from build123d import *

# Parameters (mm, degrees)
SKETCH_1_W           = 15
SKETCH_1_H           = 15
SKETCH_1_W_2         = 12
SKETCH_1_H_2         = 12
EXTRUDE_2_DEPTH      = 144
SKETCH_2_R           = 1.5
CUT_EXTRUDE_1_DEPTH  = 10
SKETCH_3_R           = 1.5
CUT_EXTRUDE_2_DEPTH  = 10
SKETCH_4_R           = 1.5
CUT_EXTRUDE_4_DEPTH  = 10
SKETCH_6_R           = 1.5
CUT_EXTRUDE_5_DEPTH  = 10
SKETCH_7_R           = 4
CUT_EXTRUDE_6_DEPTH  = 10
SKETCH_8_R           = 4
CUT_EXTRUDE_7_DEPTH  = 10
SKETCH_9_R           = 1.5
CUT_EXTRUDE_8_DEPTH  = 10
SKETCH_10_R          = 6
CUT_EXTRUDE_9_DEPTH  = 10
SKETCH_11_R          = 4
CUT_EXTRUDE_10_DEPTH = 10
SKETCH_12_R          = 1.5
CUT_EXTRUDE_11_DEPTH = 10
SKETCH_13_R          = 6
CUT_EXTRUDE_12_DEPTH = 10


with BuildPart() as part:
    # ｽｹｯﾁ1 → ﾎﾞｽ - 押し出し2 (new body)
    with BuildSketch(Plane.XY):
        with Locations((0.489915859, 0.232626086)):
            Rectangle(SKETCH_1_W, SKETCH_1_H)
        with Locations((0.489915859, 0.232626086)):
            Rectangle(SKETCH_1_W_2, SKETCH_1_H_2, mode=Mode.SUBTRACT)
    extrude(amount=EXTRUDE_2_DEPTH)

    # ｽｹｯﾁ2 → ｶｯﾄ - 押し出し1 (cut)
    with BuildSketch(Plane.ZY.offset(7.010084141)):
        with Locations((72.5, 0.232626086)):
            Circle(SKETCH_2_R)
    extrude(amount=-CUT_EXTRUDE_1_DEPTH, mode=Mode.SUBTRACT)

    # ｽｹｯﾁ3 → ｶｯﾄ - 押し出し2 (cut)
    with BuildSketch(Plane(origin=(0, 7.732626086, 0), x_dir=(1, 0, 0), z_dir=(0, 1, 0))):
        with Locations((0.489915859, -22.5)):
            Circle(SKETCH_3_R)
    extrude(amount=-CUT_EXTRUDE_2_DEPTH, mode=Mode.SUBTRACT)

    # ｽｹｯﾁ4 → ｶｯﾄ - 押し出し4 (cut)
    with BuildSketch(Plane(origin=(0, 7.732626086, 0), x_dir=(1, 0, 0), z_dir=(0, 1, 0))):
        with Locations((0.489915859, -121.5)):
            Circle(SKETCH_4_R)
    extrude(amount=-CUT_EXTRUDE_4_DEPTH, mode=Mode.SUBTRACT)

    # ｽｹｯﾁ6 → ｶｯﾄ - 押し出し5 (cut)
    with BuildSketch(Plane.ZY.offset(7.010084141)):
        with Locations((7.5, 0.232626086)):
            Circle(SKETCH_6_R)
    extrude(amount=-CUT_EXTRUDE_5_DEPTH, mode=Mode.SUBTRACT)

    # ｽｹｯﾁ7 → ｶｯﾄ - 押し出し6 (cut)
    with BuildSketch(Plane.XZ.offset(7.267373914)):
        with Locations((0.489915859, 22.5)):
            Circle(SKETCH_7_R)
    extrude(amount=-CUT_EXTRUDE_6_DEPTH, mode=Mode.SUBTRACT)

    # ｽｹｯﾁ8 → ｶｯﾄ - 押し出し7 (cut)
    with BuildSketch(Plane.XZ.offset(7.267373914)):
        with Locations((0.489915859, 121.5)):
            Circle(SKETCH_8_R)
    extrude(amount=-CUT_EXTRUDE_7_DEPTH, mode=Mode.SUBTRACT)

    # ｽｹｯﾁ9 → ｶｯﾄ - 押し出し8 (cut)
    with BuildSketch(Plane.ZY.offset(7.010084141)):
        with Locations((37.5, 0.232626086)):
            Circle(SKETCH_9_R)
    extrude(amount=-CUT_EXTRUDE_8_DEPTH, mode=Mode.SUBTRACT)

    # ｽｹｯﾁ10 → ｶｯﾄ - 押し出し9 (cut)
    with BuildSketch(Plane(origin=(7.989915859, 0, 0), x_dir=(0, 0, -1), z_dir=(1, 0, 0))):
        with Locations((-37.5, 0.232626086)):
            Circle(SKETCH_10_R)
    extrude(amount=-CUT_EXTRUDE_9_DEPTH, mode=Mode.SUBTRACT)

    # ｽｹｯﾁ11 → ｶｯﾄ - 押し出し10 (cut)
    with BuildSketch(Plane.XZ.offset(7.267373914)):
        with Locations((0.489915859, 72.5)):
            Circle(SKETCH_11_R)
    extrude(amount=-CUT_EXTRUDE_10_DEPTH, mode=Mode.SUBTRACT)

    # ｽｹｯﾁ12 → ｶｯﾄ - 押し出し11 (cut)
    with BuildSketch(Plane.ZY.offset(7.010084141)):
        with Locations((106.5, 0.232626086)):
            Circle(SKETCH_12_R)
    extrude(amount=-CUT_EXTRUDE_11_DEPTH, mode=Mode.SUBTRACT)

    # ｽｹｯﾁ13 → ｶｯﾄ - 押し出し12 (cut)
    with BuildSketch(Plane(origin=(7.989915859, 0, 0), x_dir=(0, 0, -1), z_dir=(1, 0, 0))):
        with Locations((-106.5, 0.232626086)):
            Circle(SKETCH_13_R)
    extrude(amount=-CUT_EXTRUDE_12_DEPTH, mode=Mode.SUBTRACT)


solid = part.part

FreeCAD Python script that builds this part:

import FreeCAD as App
import Part
import Sketcher
from FreeCAD import Vector

doc = App.newDocument("Part")
params = doc.addObject("Spreadsheet::Sheet", "Params")
for row, (alias, value) in enumerate([
    ("sketch1_width", "15 mm"),
    ("sketch1_width2", "12 mm"),
    ("pad1_length", "144 mm"),
    ("sketch2_diameter", "3 mm"),
    ("pocket1_length", "10 mm"),
    ("sketch3_diameter", "3 mm"),
    ("pocket2_length", "10 mm"),
    ("sketch4_diameter", "3 mm"),
    ("pocket3_length", "10 mm"),
    ("sketch5_diameter", "3 mm"),
    ("pocket4_length", "10 mm"),
    ("sketch6_diameter", "8 mm"),
    ("pocket5_length", "10 mm"),
    ("sketch7_diameter", "8 mm"),
    ("pocket6_length", "10 mm"),
    ("sketch8_diameter", "3 mm"),
    ("pocket7_length", "10 mm"),
    ("sketch9_diameter", "12 mm"),
    ("pocket8_length", "10 mm"),
    ("sketch10_diameter", "8 mm"),
    ("pocket9_length", "10 mm"),
    ("sketch11_diameter", "3 mm"),
    ("pocket10_length", "10 mm"),
    ("sketch12_diameter", "12 mm"),
    ("pocket11_length", "10 mm"),
], start=1):
    params.set(f"A{row}", alias)
    params.set(f"B{row}", "=" + value)
    params.setAlias(f"B{row}", alias)

body = doc.addObject("PartDesign::Body", "Body")

# Sketch on XY plane
sketch1 = body.newObject("Sketcher::SketchObject", "Sketch")
sketch1.AttachmentSupport = (doc.getObject("XY_Plane"), [""])
sketch1.MapMode = "FlatFace"
sketch1.addGeometry(Part.LineSegment(Vector(-7, 8, 0), Vector(-7, -7, 0)), False)
sketch1.addGeometry(Part.LineSegment(Vector(-7, -7, 0), Vector(8, -7, 0)), False)
sketch1.addGeometry(Part.LineSegment(Vector(8, -7, 0), Vector(8, 8, 0)), False)
sketch1.addGeometry(Part.LineSegment(Vector(8, 8, 0), Vector(-7, 8, 0)), False)
sketch1.addGeometry(Part.LineSegment(Vector(6, -6, 0), Vector(-6, -6, 0)), False)
sketch1.addGeometry(Part.LineSegment(Vector(-6, -6, 0), Vector(-6, 6, 0)), False)
sketch1.addGeometry(Part.LineSegment(Vector(-6, 6, 0), Vector(6, 6, 0)), False)
sketch1.addGeometry(Part.LineSegment(Vector(6, 6, 0), Vector(6, -6, 0)), False)
sketch1.addConstraint(Sketcher.Constraint("Coincident", 0, 2, 1, 1))
sketch1.addConstraint(Sketcher.Constraint("Coincident", 1, 2, 2, 1))
sketch1.addConstraint(Sketcher.Constraint("Coincident", 2, 2, 3, 1))
sketch1.addConstraint(Sketcher.Constraint("Coincident", 3, 2, 0, 1))
sketch1.addConstraint(Sketcher.Constraint("Coincident", 4, 2, 5, 1))
sketch1.addConstraint(Sketcher.Constraint("Coincident", 5, 2, 6, 1))
sketch1.addConstraint(Sketcher.Constraint("Coincident", 6, 2, 7, 1))
sketch1.addConstraint(Sketcher.Constraint("Coincident", 7, 2, 4, 1))
sketch1.addConstraint(Sketcher.Constraint("Vertical", 0))
sketch1.addConstraint(Sketcher.Constraint("Horizontal", 1))
sketch1.addConstraint(Sketcher.Constraint("Vertical", 2))
sketch1.addConstraint(Sketcher.Constraint("Horizontal", 3))
sketch1.addConstraint(Sketcher.Constraint("Horizontal", 4))
sketch1.addConstraint(Sketcher.Constraint("Vertical", 5))
sketch1.addConstraint(Sketcher.Constraint("Horizontal", 6))
sketch1.addConstraint(Sketcher.Constraint("Vertical", 7))
sketch1.addConstraint(Sketcher.Constraint("Equal", 3, 0))
sketch1.addConstraint(Sketcher.Constraint("Equal", 6, 5))
sketch1.addConstraint(Sketcher.Constraint("DistanceX", 1, 1, 1, 2, 15.0))
sketch1.addConstraint(Sketcher.Constraint("DistanceX", 4, 2, 4, 1, 12.0))
sketch1.addConstraint(Sketcher.Constraint("DistanceX", 0, 2, 4, 2, 1.5))
sketch1.addConstraint(Sketcher.Constraint("DistanceY", 0, 2, 4, 2, 1.5))
sketch1.addConstraint(Sketcher.Constraint("DistanceX", 0, 2, -1, 1, 7.010084))
sketch1.addConstraint(Sketcher.Constraint("DistanceY", 0, 2, -1, 1, 7.267374))
sketch1.setExpression("Constraints[18]", "Params.sketch1_width")
sketch1.setExpression("Constraints[19]", "Params.sketch1_width2")
pad1 = body.newObject("PartDesign::Pad", "Pad")
pad1.Profile = sketch1
pad1.setExpression("Length", "Params.pad1_length")

# Sketch on YZ plane
sketch2 = body.newObject("Sketcher::SketchObject", "Sketch001")
sketch2.AttachmentSupport = (doc.getObject("YZ_Plane"), [""])
sketch2.MapMode = "FlatFace"
sketch2.AttachmentOffset = App.Placement(Vector(0, 0, -7.010084), App.Rotation())
sketch2.addGeometry(Part.Circle(Vector(0.2, 72.5, 0), Vector(0, 0, 1), 1.5), False)
sketch2.addConstraint(Sketcher.Constraint("Diameter", 0, 3.0))
sketch2.addConstraint(Sketcher.Constraint("DistanceY", -1, 1, 0, 3, 72.5))
sketch2.addConstraint(Sketcher.Constraint("DistanceX", -1, 1, 0, 3, 0.232626))
sketch2.setExpression("Constraints[0]", "Params.sketch2_diameter")
pocket1 = body.newObject("PartDesign::Pocket", "Pocket")
pocket1.Profile = sketch2
pocket1.setExpression("Length", "Params.pocket1_length")
pocket1.Reversed = True

# Sketch on XZ plane
sketch3 = body.newObject("Sketcher::SketchObject", "Sketch002")
sketch3.AttachmentSupport = (doc.getObject("XZ_Plane"), [""])
sketch3.MapMode = "FlatFace"
sketch3.AttachmentOffset = App.Placement(Vector(0, 0, -7.732626), App.Rotation())
sketch3.addGeometry(Part.Circle(Vector(0.5, 22.5, 0), Vector(0, 0, 1), 1.5), False)
sketch3.addConstraint(Sketcher.Constraint("Diameter", 0, 3.0))
sketch3.addConstraint(Sketcher.Constraint("DistanceY", -1, 1, 0, 3, 22.5))
sketch3.addConstraint(Sketcher.Constraint("DistanceX", -1, 1, 0, 3, 0.489916))
sketch3.setExpression("Constraints[0]", "Params.sketch3_diameter")
pocket2 = body.newObject("PartDesign::Pocket", "Pocket001")
pocket2.Profile = sketch3
pocket2.setExpression("Length", "Params.pocket2_length")
pocket2.Reversed = True

# Sketch on XZ plane
sketch4 = body.newObject("Sketcher::SketchObject", "Sketch003")
sketch4.AttachmentSupport = (doc.getObject("XZ_Plane"), [""])
sketch4.MapMode = "FlatFace"
sketch4.AttachmentOffset = App.Placement(Vector(0, 0, -7.732626), App.Rotation())
sketch4.addGeometry(Part.Circle(Vector(0.5, 121.5, 0), Vector(0, 0, 1), 1.5), False)
sketch4.addConstraint(Sketcher.Constraint("Diameter", 0, 3.0))
sketch4.addConstraint(Sketcher.Constraint("DistanceY", -1, 1, 0, 3, 121.5))
sketch4.addConstraint(Sketcher.Constraint("DistanceX", -1, 1, 0, 3, 0.489916))
sketch4.setExpression("Constraints[0]", "Params.sketch4_diameter")
pocket3 = body.newObject("PartDesign::Pocket", "Pocket002")
pocket3.Profile = sketch4
pocket3.setExpression("Length", "Params.pocket3_length")
pocket3.Reversed = True

# Sketch on YZ plane
sketch5 = body.newObject("Sketcher::SketchObject", "Sketch004")
sketch5.AttachmentSupport = (doc.getObject("YZ_Plane"), [""])
sketch5.MapMode = "FlatFace"
sketch5.AttachmentOffset = App.Placement(Vector(0, 0, -7.010084), App.Rotation())
sketch5.addGeometry(Part.Circle(Vector(0.2, 7.5, 0), Vector(0, 0, 1), 1.5), False)
sketch5.addConstraint(Sketcher.Constraint("Diameter", 0, 3.0))
sketch5.addConstraint(Sketcher.Constraint("DistanceY", -1, 1, 0, 3, 7.5))
sketch5.addConstraint(Sketcher.Constraint("DistanceX", -1, 1, 0, 3, 0.232626))
sketch5.setExpression("Constraints[0]", "Params.sketch5_diameter")
pocket4 = body.newObject("PartDesign::Pocket", "Pocket003")
pocket4.Profile = sketch5
pocket4.setExpression("Length", "Params.pocket4_length")
pocket4.Reversed = True

# Sketch on XZ plane
sketch6 = body.newObject("Sketcher::SketchObject", "Sketch005")
sketch6.AttachmentSupport = (doc.getObject("XZ_Plane"), [""])
sketch6.MapMode = "FlatFace"
sketch6.AttachmentOffset = App.Placement(Vector(0, 0, 7.267374), App.Rotation())
sketch6.addGeometry(Part.Circle(Vector(0.5, 22.5, 0), Vector(0, 0, 1), 4), False)
sketch6.addConstraint(Sketcher.Constraint("Diameter", 0, 8.0))
sketch6.addConstraint(Sketcher.Constraint("DistanceY", -1, 1, 0, 3, 22.5))
sketch6.addConstraint(Sketcher.Constraint("DistanceX", -1, 1, 0, 3, 0.489916))
sketch6.setExpression("Constraints[0]", "Params.sketch6_diameter")
pocket5 = body.newObject("PartDesign::Pocket", "Pocket004")
pocket5.Profile = sketch6
pocket5.setExpression("Length", "Params.pocket5_length")

# Sketch on XZ plane
sketch7 = body.newObject("Sketcher::SketchObject", "Sketch006")
sketch7.AttachmentSupport = (doc.getObject("XZ_Plane"), [""])
sketch7.MapMode = "FlatFace"
sketch7.AttachmentOffset = App.Placement(Vector(0, 0, 7.267374), App.Rotation())
sketch7.addGeometry(Part.Circle(Vector(0.5, 121.5, 0), Vector(0, 0, 1), 4), False)
sketch7.addConstraint(Sketcher.Constraint("Diameter", 0, 8.0))
sketch7.addConstraint(Sketcher.Constraint("DistanceY", -1, 1, 0, 3, 121.5))
sketch7.addConstraint(Sketcher.Constraint("DistanceX", -1, 1, 0, 3, 0.489916))
sketch7.setExpression("Constraints[0]", "Params.sketch7_diameter")
pocket6 = body.newObject("PartDesign::Pocket", "Pocket005")
pocket6.Profile = sketch7
pocket6.setExpression("Length", "Params.pocket6_length")

# Sketch on YZ plane
sketch8 = body.newObject("Sketcher::SketchObject", "Sketch007")
sketch8.AttachmentSupport = (doc.getObject("YZ_Plane"), [""])
sketch8.MapMode = "FlatFace"
sketch8.AttachmentOffset = App.Placement(Vector(0, 0, -7.010084), App.Rotation())
sketch8.addGeometry(Part.Circle(Vector(0.2, 37.5, 0), Vector(0, 0, 1), 1.5), False)
sketch8.addConstraint(Sketcher.Constraint("Diameter", 0, 3.0))
sketch8.addConstraint(Sketcher.Constraint("DistanceY", -1, 1, 0, 3, 37.5))
sketch8.addConstraint(Sketcher.Constraint("DistanceX", -1, 1, 0, 3, 0.232626))
sketch8.setExpression("Constraints[0]", "Params.sketch8_diameter")
pocket7 = body.newObject("PartDesign::Pocket", "Pocket006")
pocket7.Profile = sketch8
pocket7.setExpression("Length", "Params.pocket7_length")
pocket7.Reversed = True

# Sketch on YZ plane
sketch9 = body.newObject("Sketcher::SketchObject", "Sketch008")
sketch9.AttachmentSupport = (doc.getObject("YZ_Plane"), [""])
sketch9.MapMode = "FlatFace"
sketch9.AttachmentOffset = App.Placement(Vector(0, 0, 7.989916), App.Rotation())
sketch9.addGeometry(Part.Circle(Vector(0, 38, 0), Vector(0, 0, 1), 6), False)
sketch9.addConstraint(Sketcher.Constraint("Diameter", 0, 12.0))
sketch9.addConstraint(Sketcher.Constraint("DistanceY", -1, 1, 0, 3, 37.5))
sketch9.addConstraint(Sketcher.Constraint("DistanceX", -1, 1, 0, 3, 0.232626))
sketch9.setExpression("Constraints[0]", "Params.sketch9_diameter")
pocket8 = body.newObject("PartDesign::Pocket", "Pocket007")
pocket8.Profile = sketch9
pocket8.setExpression("Length", "Params.pocket8_length")

# Sketch on XZ plane
sketch10 = body.newObject("Sketcher::SketchObject", "Sketch009")
sketch10.AttachmentSupport = (doc.getObject("XZ_Plane"), [""])
sketch10.MapMode = "FlatFace"
sketch10.AttachmentOffset = App.Placement(Vector(0, 0, 7.267374), App.Rotation())
sketch10.addGeometry(Part.Circle(Vector(0.5, 72.5, 0), Vector(0, 0, 1), 4), False)
sketch10.addConstraint(Sketcher.Constraint("Diameter", 0, 8.0))
sketch10.addConstraint(Sketcher.Constraint("DistanceY", -1, 1, 0, 3, 72.5))
sketch10.addConstraint(Sketcher.Constraint("DistanceX", -1, 1, 0, 3, 0.489916))
sketch10.setExpression("Constraints[0]", "Params.sketch10_diameter")
pocket9 = body.newObject("PartDesign::Pocket", "Pocket008")
pocket9.Profile = sketch10
pocket9.setExpression("Length", "Params.pocket9_length")

# Sketch on YZ plane
sketch11 = body.newObject("Sketcher::SketchObject", "Sketch010")
sketch11.AttachmentSupport = (doc.getObject("YZ_Plane"), [""])
sketch11.MapMode = "FlatFace"
sketch11.AttachmentOffset = App.Placement(Vector(0, 0, -7.010084), App.Rotation())
sketch11.addGeometry(Part.Circle(Vector(0.2, 106.5, 0), Vector(0, 0, 1), 1.5), False)
sketch11.addConstraint(Sketcher.Constraint("Diameter", 0, 3.0))
sketch11.addConstraint(Sketcher.Constraint("DistanceY", -1, 1, 0, 3, 106.5))
sketch11.addConstraint(Sketcher.Constraint("DistanceX", -1, 1, 0, 3, 0.232626))
sketch11.setExpression("Constraints[0]", "Params.sketch11_diameter")
pocket10 = body.newObject("PartDesign::Pocket", "Pocket009")
pocket10.Profile = sketch11
pocket10.setExpression("Length", "Params.pocket10_length")
pocket10.Reversed = True

# Sketch on YZ plane
sketch12 = body.newObject("Sketcher::SketchObject", "Sketch011")
sketch12.AttachmentSupport = (doc.getObject("YZ_Plane"), [""])
sketch12.MapMode = "FlatFace"
sketch12.AttachmentOffset = App.Placement(Vector(0, 0, 7.989916), App.Rotation())
sketch12.addGeometry(Part.Circle(Vector(0, 106, 0), Vector(0, 0, 1), 6), False)
sketch12.addConstraint(Sketcher.Constraint("Diameter", 0, 12.0))
sketch12.addConstraint(Sketcher.Constraint("DistanceY", -1, 1, 0, 3, 106.5))
sketch12.addConstraint(Sketcher.Constraint("DistanceX", -1, 1, 0, 3, 0.232626))
sketch12.setExpression("Constraints[0]", "Params.sketch12_diameter")
pocket11 = body.newObject("PartDesign::Pocket", "Pocket010")
pocket11.Profile = sketch12
pocket11.setExpression("Length", "Params.pocket11_length")

doc.recompute()
